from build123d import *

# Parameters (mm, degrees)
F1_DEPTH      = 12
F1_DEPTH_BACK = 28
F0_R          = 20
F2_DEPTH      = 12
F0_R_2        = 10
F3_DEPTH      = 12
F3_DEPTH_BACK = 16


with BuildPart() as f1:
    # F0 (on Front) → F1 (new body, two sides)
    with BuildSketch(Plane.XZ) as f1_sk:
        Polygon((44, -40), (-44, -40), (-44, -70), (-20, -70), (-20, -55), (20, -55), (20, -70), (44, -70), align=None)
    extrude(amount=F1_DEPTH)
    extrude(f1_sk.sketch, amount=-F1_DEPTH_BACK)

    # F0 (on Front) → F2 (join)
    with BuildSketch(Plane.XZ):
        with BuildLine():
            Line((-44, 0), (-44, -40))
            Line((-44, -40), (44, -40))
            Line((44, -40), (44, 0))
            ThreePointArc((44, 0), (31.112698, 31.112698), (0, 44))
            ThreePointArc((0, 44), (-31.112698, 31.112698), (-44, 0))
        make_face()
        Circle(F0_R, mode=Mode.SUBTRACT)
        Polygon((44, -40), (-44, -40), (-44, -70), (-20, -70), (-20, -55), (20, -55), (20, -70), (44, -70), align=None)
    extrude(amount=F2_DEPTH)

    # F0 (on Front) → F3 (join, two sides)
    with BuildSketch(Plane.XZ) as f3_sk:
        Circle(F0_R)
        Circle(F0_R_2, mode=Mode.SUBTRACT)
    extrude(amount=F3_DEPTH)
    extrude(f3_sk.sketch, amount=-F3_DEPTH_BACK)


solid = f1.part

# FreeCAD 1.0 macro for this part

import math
import FreeCAD as App
import Part
import Sketcher
Q = App.Units.Quantity

doc = App.newDocument("Part")
body = doc.addObject("PartDesign::Body", "Body")

# Sketch on XZ plane
sketch1 = doc.addObject("Sketcher::SketchObject", "Sketch")
body.addObject(sketch1)
sketch1.AttachmentSupport = (doc.XZ_Plane, [""])
sketch1.MapMode = "FlatFace"
sketch1.addGeometry([
    Part.LineSegment(App.Vector(44, -40, 0), App.Vector(-44, -40, 0)),  # 0
    Part.LineSegment(App.Vector(-44, -40, 0), App.Vector(-44, -70, 0)),  # 1
    Part.LineSegment(App.Vector(-44, -70, 0), App.Vector(-20, -70, 0)),  # 2
    Part.LineSegment(App.Vector(-20, -70, 0), App.Vector(-20, -55, 0)),  # 3
    Part.LineSegment(App.Vector(-20, -55, 0), App.Vector(20, -55, 0)),  # 4
    Part.LineSegment(App.Vector(20, -55, 0), App.Vector(20, -70, 0)),  # 5
    Part.LineSegment(App.Vector(20, -70, 0), App.Vector(44, -70, 0)),  # 6
    Part.LineSegment(App.Vector(44, -70, 0), App.Vector(44, -40, 0)),  # 7
], False)
sketch1.addConstraint([
    Sketcher.Constraint("Coincident", 0, 2, 1, 1),
    Sketcher.Constraint("Coincident", 1, 2, 2, 1),
    Sketcher.Constraint("Coincident", 2, 2, 3, 1),
    Sketcher.Constraint("Coincident", 3, 2, 4, 1),
    Sketcher.Constraint("Coincident", 4, 2, 5, 1),
    Sketcher.Constraint("Coincident", 5, 2, 6, 1),
    Sketcher.Constraint("Coincident", 6, 2, 7, 1),
    Sketcher.Constraint("Coincident", 7, 2, 0, 1),
    Sketcher.Constraint("Horizontal", 0),
    Sketcher.Constraint("Vertical", 1),
    Sketcher.Constraint("Horizontal", 2),
    Sketcher.Constraint("Vertical", 3),
    Sketcher.Constraint("Horizontal", 4),
    Sketcher.Constraint("Vertical", 5),
    Sketcher.Constraint("Horizontal", 6),
    Sketcher.Constraint("Vertical", 7),
    Sketcher.Constraint("Symmetric", 2, 2, 5, 2, -2),
    Sketcher.Constraint("Equal", 2, 6),
    Sketcher.Constraint("DistanceX", 0, 2, 0, 1, Q("88 mm")),
    Sketcher.Constraint("DistanceX", 2, 1, 2, 2, Q("24 mm")),
    Sketcher.Constraint("DistanceY", 1, 2, 1, 1, Q("30 mm")),
    Sketcher.Constraint("DistanceY", 3, 1, 3, 2, Q("15 mm")),
    Sketcher.Constraint("DistanceY", 0, 2, -1, 1, Q("40 mm")),
])
pad1 = doc.addObject("PartDesign::Pad", "Pad")
body.addObject(pad1)
pad1.Profile = sketch1
pad1.Type = "TwoLengths"
pad1.Length = 12
pad1.Length2 = 28

# Sketch on XZ plane
sketch2 = doc.addObject("Sketcher::SketchObject", "Sketch001")
body.addObject(sketch2)
sketch2.AttachmentSupport = (doc.XZ_Plane, [""])
sketch2.MapMode = "FlatFace"
sketch2.addGeometry([
    Part.LineSegment(App.Vector(-44, 0, 0), App.Vector(-44, -70, 0)),  # 0
    Part.LineSegment(App.Vector(-44, -70, 0), App.Vector(-20, -70, 0)),  # 1
    Part.LineSegment(App.Vector(-20, -70, 0), App.Vector(-20, -55, 0)),  # 2
    Part.LineSegment(App.Vector(-20, -55, 0), App.Vector(20, -55, 0)),  # 3
    Part.LineSegment(App.Vector(20, -55, 0), App.Vector(20, -70, 0)),  # 4
    Part.LineSegment(App.Vector(20, -70, 0), App.Vector(44, -70, 0)),  # 5
    Part.LineSegment(App.Vector(44, -70, 0), App.Vector(44, 0, 0)),  # 6
    Part.ArcOfCircle(Part.Circle(App.Vector(0, 0, 0), App.Vector(0, 0, 1), 44), math.radians(0), math.radians(90)),  # 7
    Part.ArcOfCircle(Part.Circle(App.Vector(0, 0, 0), App.Vector(0, 0, 1), 44), math.radians(90), math.radians(180)),  # 8
    Part.Circle(App.Vector(0, 0, 0), App.Vector(0, 0, 1), 20),  # 9
], False)
sketch2.addConstraint([
    Sketcher.Constraint("Coincident", 0, 2, 1, 1),
    Sketcher.Constraint("Coincident", 1, 2, 2, 1),
    Sketcher.Constraint("Coincident", 2, 2, 3, 1),
    Sketcher.Constraint("Coincident", 3, 2, 4, 1),
    Sketcher.Constraint("Coincident", 4, 2, 5, 1),
    Sketcher.Constraint("Coincident", 5, 2, 6, 1),
    Sketcher.Constraint("Tangent", 6, 2, 7, 1),
    Sketcher.Constraint("Tangent", 7, 2, 8, 1),
    Sketcher.Constraint("Tangent", 8, 2, 0, 1),
    Sketcher.Constraint("Vertical", 0),
    Sketcher.Constraint("Horizontal", 1),
    Sketcher.Constraint("Vertical", 2),
    Sketcher.Constraint("Horizontal", 3),
    Sketcher.Constraint("Vertical", 4),
    Sketcher.Constraint("Horizontal", 5),
    Sketcher.Constraint("Vertical", 6),
    Sketcher.Constraint("Coincident", 7, 3, -1, 1),
    Sketcher.Constraint("Coincident", 9, 3, -1, 1),
    Sketcher.Constraint("Equal", 7, 8),
    Sketcher.Constraint("Symmetric", 1, 2, 4, 2, -2),
    Sketcher.Constraint("PointOnObject", 7, 2, -2),
    Sketcher.Constraint("Diameter", 9, Q("40 mm")),
    Sketcher.Constraint("Radius", 7, Q("44.000001 mm")),
    Sketcher.Constraint("DistanceX", 1, 1, 1, 2, Q("24 mm")),
    Sketcher.Constraint("DistanceY", 0, 2, 0, 1, Q("70 mm")),
    Sketcher.Constraint("DistanceY", 2, 1, 2, 2, Q("15 mm")),
])
pad2 = doc.addObject("PartDesign::Pad", "Pad001")
body.addObject(pad2)
pad2.Profile = sketch2
pad2.Length = 12

# Sketch on XZ plane
sketch3 = doc.addObject("Sketcher::SketchObject", "Sketch002")
body.addObject(sketch3)
sketch3.AttachmentSupport = (doc.XZ_Plane, [""])
sketch3.MapMode = "FlatFace"
sketch3.addGeometry([
    Part.Circle(App.Vector(0, 0, 0), App.Vector(0, 0, 1), 20),
    Part.Circle(App.Vector(0, 0, 0), App.Vector(0, 0, 1), 10),
], False)
sketch3.addConstraint([
    Sketcher.Constraint("Coincident", 0, 3, -1, 1),
    Sketcher.Constraint("Coincident", 1, 3, -1, 1),
    Sketcher.Constraint("Diameter", 0, Q("40 mm")),
    Sketcher.Constraint("Diameter", 1, Q("20 mm")),
])
pad3 = doc.addObject("PartDesign::Pad", "Pad002")
body.addObject(pad3)
pad3.Profile = sketch3
pad3.Type = "TwoLengths"
pad3.Length = 12
pad3.Length2 = 16

doc.recompute()
